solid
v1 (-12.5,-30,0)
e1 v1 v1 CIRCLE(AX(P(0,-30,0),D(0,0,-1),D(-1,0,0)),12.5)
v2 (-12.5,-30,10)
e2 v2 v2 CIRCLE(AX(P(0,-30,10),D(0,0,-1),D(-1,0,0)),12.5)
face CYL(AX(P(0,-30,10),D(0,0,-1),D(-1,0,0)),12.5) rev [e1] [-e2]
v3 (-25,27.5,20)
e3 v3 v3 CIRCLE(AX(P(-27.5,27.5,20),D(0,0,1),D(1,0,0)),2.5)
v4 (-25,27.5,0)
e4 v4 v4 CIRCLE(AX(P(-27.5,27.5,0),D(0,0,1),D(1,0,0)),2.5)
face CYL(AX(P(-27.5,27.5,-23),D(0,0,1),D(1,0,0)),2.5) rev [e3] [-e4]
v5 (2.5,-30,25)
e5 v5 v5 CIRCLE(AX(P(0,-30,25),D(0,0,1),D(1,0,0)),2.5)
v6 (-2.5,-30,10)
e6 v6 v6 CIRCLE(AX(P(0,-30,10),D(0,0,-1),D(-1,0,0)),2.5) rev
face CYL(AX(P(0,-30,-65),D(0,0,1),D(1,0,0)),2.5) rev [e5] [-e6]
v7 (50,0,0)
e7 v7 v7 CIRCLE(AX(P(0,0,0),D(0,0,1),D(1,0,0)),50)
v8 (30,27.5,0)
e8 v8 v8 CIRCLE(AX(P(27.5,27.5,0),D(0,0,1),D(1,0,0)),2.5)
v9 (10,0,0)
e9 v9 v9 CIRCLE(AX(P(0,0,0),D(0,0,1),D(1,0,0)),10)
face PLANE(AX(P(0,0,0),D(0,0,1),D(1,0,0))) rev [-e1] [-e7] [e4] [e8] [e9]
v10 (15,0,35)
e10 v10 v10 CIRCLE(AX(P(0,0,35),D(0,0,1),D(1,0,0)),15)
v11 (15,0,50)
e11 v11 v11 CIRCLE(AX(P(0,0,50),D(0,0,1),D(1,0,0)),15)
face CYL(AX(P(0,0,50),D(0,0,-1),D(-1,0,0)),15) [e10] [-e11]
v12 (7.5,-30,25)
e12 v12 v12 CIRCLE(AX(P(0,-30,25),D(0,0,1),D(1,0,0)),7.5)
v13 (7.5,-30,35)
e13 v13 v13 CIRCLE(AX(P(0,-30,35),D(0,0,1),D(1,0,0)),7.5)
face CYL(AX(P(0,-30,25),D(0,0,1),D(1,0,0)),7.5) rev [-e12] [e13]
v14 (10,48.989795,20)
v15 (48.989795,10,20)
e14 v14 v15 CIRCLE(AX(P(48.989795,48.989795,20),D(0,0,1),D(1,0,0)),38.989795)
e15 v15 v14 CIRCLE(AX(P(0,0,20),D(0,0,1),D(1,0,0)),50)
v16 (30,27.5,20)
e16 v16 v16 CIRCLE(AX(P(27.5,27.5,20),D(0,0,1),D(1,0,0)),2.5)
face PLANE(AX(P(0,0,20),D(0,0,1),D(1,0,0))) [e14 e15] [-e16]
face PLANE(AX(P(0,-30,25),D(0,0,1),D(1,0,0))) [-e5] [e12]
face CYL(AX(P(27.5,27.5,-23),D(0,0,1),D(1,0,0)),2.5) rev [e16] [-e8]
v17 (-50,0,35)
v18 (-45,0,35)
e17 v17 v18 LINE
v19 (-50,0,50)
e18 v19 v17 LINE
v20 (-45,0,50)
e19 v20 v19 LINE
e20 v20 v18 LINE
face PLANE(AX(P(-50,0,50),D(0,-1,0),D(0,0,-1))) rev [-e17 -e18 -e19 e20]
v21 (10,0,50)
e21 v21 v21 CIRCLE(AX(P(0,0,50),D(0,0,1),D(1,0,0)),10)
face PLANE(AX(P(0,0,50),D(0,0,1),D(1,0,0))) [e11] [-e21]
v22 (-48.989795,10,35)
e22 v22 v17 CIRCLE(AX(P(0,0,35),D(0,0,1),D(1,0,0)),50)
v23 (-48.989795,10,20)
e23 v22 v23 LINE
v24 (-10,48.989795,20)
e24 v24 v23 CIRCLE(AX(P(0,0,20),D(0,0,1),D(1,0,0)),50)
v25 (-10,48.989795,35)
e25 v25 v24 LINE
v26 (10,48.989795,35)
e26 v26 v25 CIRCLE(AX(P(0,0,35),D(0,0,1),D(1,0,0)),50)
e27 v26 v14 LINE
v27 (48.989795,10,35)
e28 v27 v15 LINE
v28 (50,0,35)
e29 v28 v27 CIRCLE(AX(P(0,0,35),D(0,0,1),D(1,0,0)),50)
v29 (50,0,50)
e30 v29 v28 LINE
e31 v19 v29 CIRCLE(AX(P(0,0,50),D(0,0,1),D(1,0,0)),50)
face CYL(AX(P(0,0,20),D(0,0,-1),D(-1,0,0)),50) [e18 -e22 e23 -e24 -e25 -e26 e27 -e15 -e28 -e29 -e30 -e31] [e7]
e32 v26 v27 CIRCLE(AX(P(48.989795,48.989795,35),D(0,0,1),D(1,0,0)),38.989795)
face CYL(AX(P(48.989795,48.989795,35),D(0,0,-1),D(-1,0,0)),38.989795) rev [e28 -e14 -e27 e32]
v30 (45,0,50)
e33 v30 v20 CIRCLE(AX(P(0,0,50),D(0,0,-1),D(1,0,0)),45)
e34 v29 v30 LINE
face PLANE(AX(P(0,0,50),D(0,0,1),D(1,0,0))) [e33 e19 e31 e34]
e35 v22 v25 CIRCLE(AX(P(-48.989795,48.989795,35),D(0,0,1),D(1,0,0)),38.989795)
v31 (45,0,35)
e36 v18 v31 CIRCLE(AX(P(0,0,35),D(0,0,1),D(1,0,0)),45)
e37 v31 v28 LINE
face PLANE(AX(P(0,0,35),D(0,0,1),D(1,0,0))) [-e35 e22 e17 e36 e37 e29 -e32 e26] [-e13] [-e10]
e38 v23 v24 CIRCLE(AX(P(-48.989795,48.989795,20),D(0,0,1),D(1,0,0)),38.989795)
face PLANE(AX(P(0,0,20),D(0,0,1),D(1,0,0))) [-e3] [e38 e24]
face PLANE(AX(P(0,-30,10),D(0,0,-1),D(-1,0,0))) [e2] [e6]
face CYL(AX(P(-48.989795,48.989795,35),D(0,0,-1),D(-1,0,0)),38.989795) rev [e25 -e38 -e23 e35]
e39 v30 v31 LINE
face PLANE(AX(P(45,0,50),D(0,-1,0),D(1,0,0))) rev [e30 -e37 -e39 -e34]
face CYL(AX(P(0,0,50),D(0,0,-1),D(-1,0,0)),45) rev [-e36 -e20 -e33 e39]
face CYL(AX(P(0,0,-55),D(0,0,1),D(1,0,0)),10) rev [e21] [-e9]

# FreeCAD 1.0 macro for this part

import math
import FreeCAD as App
import Part
import Sketcher
Q = App.Units.Quantity

doc = App.newDocument("Part")
body = doc.addObject("PartDesign::Body", "Body")

# Sketch on XY plane
sketch1 = doc.addObject("Sketcher::SketchObject", "Sketch")
body.addObject(sketch1)
sketch1.AttachmentSupport = (doc.XY_Plane, [""])
sketch1.MapMode = "FlatFace"
sketch1.addGeometry(Part.Circle(App.Vector(0, 0, 0), App.Vector(0, 0, 1), 50), False)
sketch1.addConstraint(Sketcher.Constraint("Coincident", 0, 3, -1, 1))
sketch1.addConstraint(Sketcher.Constraint("Diameter", 0, Q("100 mm")))
pad1 = doc.addObject("PartDesign::Pad", "Pad")
body.addObject(pad1)
pad1.Profile = sketch1
pad1.Length = 20

# Sketch on XY plane
sketch2 = doc.addObject("Sketcher::SketchObject", "Sketch001")
body.addObject(sketch2)
sketch2.AttachmentSupport = (doc.XY_Plane, [""])
sketch2.MapMode = "FlatFace"
sketch2.AttachmentOffset = App.Placement(App.Vector(0, 0, 20), App.Rotation())
sketch2.addGeometry(Part.LineSegment(App.Vector(-45, 0, 0), App.Vector(-50, 0, 0)), False)
sketch2.addGeometry(Part.ArcOfCircle(Part.Circle(App.Vector(0, 0, 0), App.Vector(0, 0, 1), 50), math.radians(180), math.radians(360)), False)
sketch2.addGeometry(Part.LineSegment(App.Vector(50, 0, 0), App.Vector(45, 0, 0)), False)
sketch2.addGeometry(Part.ArcOfCircle(Part.Circle(App.Vector(0, 0, 0), App.Vector(0, 0, 1), 45), math.radians(180), math.radians(360)), False)
sketch2.addConstraint(Sketcher.Constraint("Coincident", 0, 2, 1, 1))
sketch2.addConstraint(Sketcher.Constraint("Coincident", 1, 2, 2, 1))
sketch2.addConstraint(Sketcher.Constraint("Coincident", 2, 2, 3, 2))
sketch2.addConstraint(Sketcher.Constraint("Coincident", 3, 1, 0, 1))
sketch2.addConstraint(Sketcher.Constraint("Horizontal", 0))
sketch2.addConstraint(Sketcher.Constraint("Horizontal", 2))
sketch2.addConstraint(Sketcher.Constraint("Coincident", 1, 3, -1, 1))
sketch2.addConstraint(Sketcher.Constraint("Coincident", 3, 3, -1, 1))
sketch2.addConstraint(Sketcher.Constraint("PointOnObject", 0, 2, -1))
sketch2.addConstraint(Sketcher.Constraint("PointOnObject", 1, 2, -1))
sketch2.addConstraint(Sketcher.Constraint("Radius", 1, Q("50 mm")))
sketch2.addConstraint(Sketcher.Constraint("Radius", 3, Q("45 mm")))
pad2 = doc.addObject("PartDesign::Pad", "Pad001")
body.addObject(pad2)
pad2.Profile = sketch2
pad2.Length = 30

# Sketch on XY plane
sketch3 = doc.addObject("Sketcher::SketchObject", "Sketch002")
body.addObject(sketch3)
sketch3.AttachmentSupport = (doc.XY_Plane, [""])
sketch3.MapMode = "FlatFace"
sketch3.AttachmentOffset = App.Placement(App.Vector(0, 0, 20), App.Rotation())
sketch3.addGeometry(Part.ArcOfCircle(Part.Circle(App.Vector(0, 0, 0), App.Vector(0, 0, 1), 50), math.radians(168.463041), math.radians(180)), False)
sketch3.addGeometry(Part.LineSegment(App.Vector(-50, 0, 0), App.Vector(-45, 0, 0)), False)
sketch3.addGeometry(Part.ArcOfCircle(Part.Circle(App.Vector(0, 0, 0), App.Vector(0, 0, 1), 45), math.radians(180), math.radians(360)), False)
sketch3.addGeometry(Part.LineSegment(App.Vector(45, 0, 0), App.Vector(50, 0, 0)), False)
sketch3.addGeometry(Part.ArcOfCircle(Part.Circle(App.Vector(0, 0, 0), App.Vector(0, 0, 1), 50), math.radians(0), math.radians(11.536959)), False)
sketch3.addGeometry(Part.ArcOfCircle(Part.Circle(App.Vector(48.989795, 48.989795, 0), App.Vector(0, 0, 1), 38.989795), math.radians(180), math.radians(270)), False)
sketch3.addGeometry(Part.ArcOfCircle(Part.Circle(App.Vector(0, 0, 0), App.Vector(0, 0, 1), 50), math.radians(78.463041), math.radians(101.536959)), False)
sketch3.addGeometry(Part.ArcOfCircle(Part.Circle(App.Vector(-48.989795, 48.989795, 0), App.Vector(0, 0, 1), 38.989795), math.radians(-90), math.radians(0)), False)
sketch3.addConstraint(Sketcher.Constraint("Coincident", 0, 2, 1, 1))
sketch3.addConstraint(Sketcher.Constraint("Coincident", 1, 2, 2, 1))
sketch3.addConstraint(Sketcher.Constraint("Coincident", 2, 2, 3, 1))
sketch3.addConstraint(Sketcher.Constraint("Coincident", 3, 2, 4, 1))
sketch3.addConstraint(Sketcher.Constraint("Coincident", 4, 2, 5, 2))
sketch3.addConstraint(Sketcher.Constraint("Coincident", 5, 1, 6, 1))
sketch3.addConstraint(Sketcher.Constraint("Coincident", 6, 2, 7, 2))
sketch3.addConstraint(Sketcher.Constraint("Coincident", 7, 1, 0, 1))
sketch3.addConstraint(Sketcher.Constraint("Horizontal", 1))
sketch3.addConstraint(Sketcher.Constraint("Horizontal", 3))
sketch3.addConstraint(Sketcher.Constraint("Coincident", 0, 3, -1, 1))
sketch3.addConstraint(Sketcher.Constraint("Coincident", 2, 3, -1, 1))
sketch3.addConstraint(Sketcher.Constraint("Coincident", 4, 3, -1, 1))
sketch3.addConstraint(Sketcher.Constraint("Coincident", 6, 3, -1, 1))
sketch3.addConstraint(Sketcher.Constraint("Equal", 0, 4))
sketch3.addConstraint(Sketcher.Constraint("Equal", 4, 6))
sketch3.addConstraint(Sketcher.Constraint("Equal", 5, 7))
sketch3.addConstraint(Sketcher.Constraint("Symmetric", 5, 3, 7, 3, -2))
sketch3.addConstraint(Sketcher.Constraint("PointOnObject", 0, 2, -1))
sketch3.addConstraint(Sketcher.Constraint("PointOnObject", 2, 2, -1))
sketch3.addConstraint(Sketcher.Constraint("Horizontal", 7, 3, 5, 1))
sketch3.addConstraint(Sketcher.Constraint("Vertical", 5, 3, 4, 2))
sketch3.addConstraint(Sketcher.Constraint("Radius", 0, Q("50 mm")))
sketch3.addConstraint(Sketcher.Constraint("Radius", 2, Q("45 mm")))
sketch3.addConstraint(Sketcher.Constraint("DistanceY", -1, 1, 4, 2, Q("10 mm")))
pad3 = doc.addObject("PartDesign::Pad", "Pad002")
body.addObject(pad3)
pad3.Profile = sketch3
pad3.Length = 15

# Sketch on XY plane
sketch4 = doc.addObject("Sketcher::SketchObject", "Sketch003")
body.addObject(sketch4)
sketch4.AttachmentSupport = (doc.XY_Plane, [""])
sketch4.MapMode = "FlatFace"
sketch4.AttachmentOffset = App.Placement(App.Vector(0, 0, 20), App.Rotation())
sketch4.addGeometry(Part.Circle(App.Vector(-27.5, 27.5, 0), App.Vector(0, 0, 1), 2.5), False)
sketch4.addGeometry(Part.Circle(App.Vector(27.5, 27.5, 0), App.Vector(0, 0, 1), 2.5), False)
sketch4.addConstraint(Sketcher.Constraint("Equal", 0, 1))
sketch4.addConstraint(Sketcher.Constraint("Symmetric", 0, 3, 1, 3, -2))
sketch4.addConstraint(Sketcher.Constraint("Diameter", 0, Q("5 mm")))
sketch4.addConstraint(Sketcher.Constraint("DistanceX", 0, 3, 1, 3, Q("55 mm")))
sketch4.addConstraint(Sketcher.Constraint("DistanceY", -1, 1, 0, 3, Q("27.5 mm")))
pocket1 = doc.addObject("PartDesign::Pocket", "Pocket")
body.addObject(pocket1)
pocket1.Profile = sketch4
pocket1.Length = 43

# Sketch on XY plane
sketch5 = doc.addObject("Sketcher::SketchObject", "Sketch004")
body.addObject(sketch5)
sketch5.AttachmentSupport = (doc.XY_Plane, [""])
sketch5.MapMode = "FlatFace"
sketch5.AttachmentOffset = App.Placement(App.Vector(0, 0, 35), App.Rotation())
sketch5.addGeometry(Part.Circle(App.Vector(0, -30, 0), App.Vector(0, 0, 1), 7.5), False)
sketch5.addConstraint(Sketcher.Constraint("PointOnObject", 0, 3, -2))
sketch5.addConstraint(Sketcher.Constraint("Diameter", 0, Q("15 mm")))
sketch5.addConstraint(Sketcher.Constraint("DistanceY", 0, 3, -1, 1, Q("30 mm")))
pocket2 = doc.addObject("PartDesign::Pocket", "Pocket001")
body.addObject(pocket2)
pocket2.Profile = sketch5
pocket2.Length = 10

# Sketch on XY plane
sketch6 = doc.addObject("Sketcher::SketchObject", "Sketch005")
body.addObject(sketch6)
sketch6.AttachmentSupport = (doc.XY_Plane, [""])
sketch6.MapMode = "FlatFace"
sketch6.AttachmentOffset = App.Placement(App.Vector(0, 0, 25), App.Rotation())
sketch6.addGeometry(Part.Circle(App.Vector(0, -30, 0), App.Vector(0, 0, 1), 2.5), False)
sketch6.addConstraint(Sketcher.Constraint("PointOnObject", 0, 3, -2))
sketch6.addConstraint(Sketcher.Constraint("Diameter", 0, Q("5 mm")))
sketch6.addConstraint(Sketcher.Constraint("DistanceY", 0, 3, -1, 1, Q("30 mm")))
pocket3 = doc.addObject("PartDesign::Pocket", "Pocket002")
body.addObject(pocket3)
pocket3.Profile = sketch6
pocket3.Length = 90

# Sketch on XY plane
sketch7 = doc.addObject("Sketcher::SketchObject", "Sketch006")
body.addObject(sketch7)
sketch7.AttachmentSupport = (doc.XY_Plane, [""])
sketch7.MapMode = "FlatFace"
sketch7.addGeometry(Part.Circle(App.Vector(0, -30, 0), App.Vector(0, 0, 1), 12.5), False)
sketch7.addConstraint(Sketcher.Constraint("PointOnObject", 0, 3, -2))
sketch7.addConstraint(Sketcher.Constraint("Diameter", 0, Q("25 mm")))
sketch7.addConstraint(Sketcher.Constraint("DistanceY", 0, 3, -1, 1, Q("30 mm")))
pocket4 = doc.addObject("PartDesign::Pocket", "Pocket003")
body.addObject(pocket4)
pocket4.Profile = sketch7
pocket4.Length = 10
pocket4.Reversed = True

# Sketch on XY plane
sketch8 = doc.addObject("Sketcher::SketchObject", "Sketch007")
body.addObject(sketch8)
sketch8.AttachmentSupport = (doc.XY_Plane, [""])
sketch8.MapMode = "FlatFace"
sketch8.AttachmentOffset = App.Placement(App.Vector(0, 0, 35), App.Rotation())
sketch8.addGeometry(Part.Circle(App.Vector(0, 0, 0), App.Vector(0, 0, 1), 15), False)
sketch8.addConstraint(Sketcher.Constraint("Coincident", 0, 3, -1, 1))
sketch8.addConstraint(Sketcher.Constraint("Diameter", 0, Q("30 mm")))
pad4 = doc.addObject("PartDesign::Pad", "Pad003")
body.addObject(pad4)
pad4.Profile = sketch8
pad4.Length = 15

# Sketch on XY plane
sketch9 = doc.addObject("Sketcher::SketchObject", "Sketch008")
body.addObject(sketch9)
sketch9.AttachmentSupport = (doc.XY_Plane, [""])
sketch9.MapMode = "FlatFace"
sketch9.AttachmentOffset = App.Placement(App.Vector(0, 0, 50), App.Rotation())
sketch9.addGeometry(Part.Circle(App.Vector(0, 0, 0), App.Vector(0, 0, 1), 10), False)
sketch9.addConstraint(Sketcher.Constraint("Coincident", 0, 3, -1, 1))
sketch9.addConstraint(Sketcher.Constraint("Diameter", 0, Q("20 mm")))
pocket5 = doc.addObject("PartDesign::Pocket", "Pocket004")
body.addObject(pocket5)
pocket5.Profile = sketch9
pocket5.Length = 105

doc.recompute()
